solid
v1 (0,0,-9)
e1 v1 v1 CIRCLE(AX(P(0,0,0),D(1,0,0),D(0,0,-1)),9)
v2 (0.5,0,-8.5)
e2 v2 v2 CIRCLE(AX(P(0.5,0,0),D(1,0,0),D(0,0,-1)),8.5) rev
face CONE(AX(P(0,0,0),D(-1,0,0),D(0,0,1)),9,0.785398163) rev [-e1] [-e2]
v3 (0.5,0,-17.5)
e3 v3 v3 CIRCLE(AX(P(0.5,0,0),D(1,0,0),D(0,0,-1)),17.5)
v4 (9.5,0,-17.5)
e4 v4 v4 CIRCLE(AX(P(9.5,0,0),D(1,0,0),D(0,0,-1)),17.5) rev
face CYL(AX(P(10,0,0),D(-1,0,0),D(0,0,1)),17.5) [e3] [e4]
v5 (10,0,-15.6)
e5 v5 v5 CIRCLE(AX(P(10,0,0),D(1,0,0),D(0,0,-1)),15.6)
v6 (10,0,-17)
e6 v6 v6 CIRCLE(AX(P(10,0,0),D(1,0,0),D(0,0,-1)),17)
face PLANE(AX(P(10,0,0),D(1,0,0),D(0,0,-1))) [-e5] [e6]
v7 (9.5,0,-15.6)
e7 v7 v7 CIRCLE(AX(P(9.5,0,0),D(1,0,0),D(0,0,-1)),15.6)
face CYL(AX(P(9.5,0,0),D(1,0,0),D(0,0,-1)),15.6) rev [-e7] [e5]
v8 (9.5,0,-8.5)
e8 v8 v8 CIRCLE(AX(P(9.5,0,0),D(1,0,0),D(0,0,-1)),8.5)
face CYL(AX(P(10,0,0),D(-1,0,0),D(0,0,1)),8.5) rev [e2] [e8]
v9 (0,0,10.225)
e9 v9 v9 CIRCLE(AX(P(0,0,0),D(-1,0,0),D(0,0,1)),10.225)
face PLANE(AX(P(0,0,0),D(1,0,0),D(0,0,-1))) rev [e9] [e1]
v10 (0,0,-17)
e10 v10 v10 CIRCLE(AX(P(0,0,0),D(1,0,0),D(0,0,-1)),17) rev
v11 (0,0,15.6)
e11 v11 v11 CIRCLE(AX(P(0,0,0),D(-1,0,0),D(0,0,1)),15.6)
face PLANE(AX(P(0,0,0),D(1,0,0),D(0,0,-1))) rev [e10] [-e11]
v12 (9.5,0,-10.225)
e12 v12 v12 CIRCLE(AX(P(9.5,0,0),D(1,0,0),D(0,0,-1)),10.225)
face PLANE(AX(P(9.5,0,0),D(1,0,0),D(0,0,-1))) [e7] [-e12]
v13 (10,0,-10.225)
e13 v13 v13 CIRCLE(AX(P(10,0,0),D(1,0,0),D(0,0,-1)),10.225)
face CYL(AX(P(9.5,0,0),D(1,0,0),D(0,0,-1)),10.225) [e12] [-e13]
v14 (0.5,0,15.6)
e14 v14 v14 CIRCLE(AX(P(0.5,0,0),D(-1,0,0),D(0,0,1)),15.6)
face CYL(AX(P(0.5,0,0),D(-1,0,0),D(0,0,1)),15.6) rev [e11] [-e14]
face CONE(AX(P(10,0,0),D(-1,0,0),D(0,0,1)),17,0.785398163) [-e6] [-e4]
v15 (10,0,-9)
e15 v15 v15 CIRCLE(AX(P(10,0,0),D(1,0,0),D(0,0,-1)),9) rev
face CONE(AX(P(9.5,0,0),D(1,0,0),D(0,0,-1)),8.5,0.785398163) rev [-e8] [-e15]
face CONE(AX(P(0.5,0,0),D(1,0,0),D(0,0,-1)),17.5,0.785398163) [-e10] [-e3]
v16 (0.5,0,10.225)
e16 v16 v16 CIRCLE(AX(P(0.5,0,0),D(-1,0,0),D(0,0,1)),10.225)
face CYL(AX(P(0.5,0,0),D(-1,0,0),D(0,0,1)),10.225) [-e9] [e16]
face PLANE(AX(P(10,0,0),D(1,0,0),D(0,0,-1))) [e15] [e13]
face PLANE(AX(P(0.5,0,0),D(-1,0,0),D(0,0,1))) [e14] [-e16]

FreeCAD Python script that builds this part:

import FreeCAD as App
import Part
import Sketcher
from FreeCAD import Vector
Q = App.Units.Quantity


def edges_at(feature, points):
    """Names of the edges that pass closest to the given points."""
    edges = feature.Shape.Edges
    near = lambda p: min(range(len(edges)), key=lambda i: edges[i].distToShape(Part.Vertex(*p))[0])
    return sorted({f"Edge{near(p) + 1}" for p in points})

doc = App.newDocument("Part")
body = doc.addObject("PartDesign::Body", "Body")

# Sketch on YZ plane
sketch1 = body.newObject("Sketcher::SketchObject", "Sketch")
sketch1.AttachmentSupport = (doc.getObject("YZ_Plane"), [""])
sketch1.MapMode = "FlatFace"
sketch1.addGeometry([
    Part.Circle(Vector(0, 0, 0), Vector(0, 0, 1), 17.5),
    Part.Circle(Vector(0, 0, 0), Vector(0, 0, 1), 8.5),
], False)
sketch1.addConstraint([
    Sketcher.Constraint("Coincident", 0, 3, -1, 1),
    Sketcher.Constraint("Coincident", 1, 3, -1, 1),
    Sketcher.Constraint("Diameter", 0, Q("35 mm")),
    Sketcher.Constraint("Diameter", 1, Q("17 mm")),
])
pad1 = body.newObject("PartDesign::Pad", "Pad")
pad1.Profile = sketch1
pad1.Length = 10
doc.recompute()

chamfer = body.newObject("PartDesign::Chamfer", "Chamfer")
chamfer.Base = (pad1, edges_at(pad1, [
    (0, 0, 17.5),
    (10, 0, 17.5),
    (0, 0, 8.5),
    (10, 0, 8.5),
]))
chamfer.Size = 0.5

# Sketch on YZ plane
sketch2 = body.newObject("Sketcher::SketchObject", "Sketch001")
sketch2.AttachmentSupport = (doc.getObject("YZ_Plane"), [""])
sketch2.MapMode = "FlatFace"
sketch2.AttachmentOffset = App.Placement(Vector(0, 0, 10), App.Rotation())
sketch2.addGeometry([
    Part.Circle(Vector(0, 0, 0), Vector(0, 0, 1), 15.6),
    Part.Circle(Vector(0, 0, 0), Vector(0, 0, 1), 10.225),
], False)
sketch2.addConstraint([
    Sketcher.Constraint("Coincident", 0, 3, -1, 1),
    Sketcher.Constraint("Coincident", 1, 3, -1, 1),
    Sketcher.Constraint("Diameter", 0, Q("31.2 mm")),
    Sketcher.Constraint("Diameter", 1, Q("20.45 mm")),
])
pocket1 = body.newObject("PartDesign::Pocket", "Pocket")
pocket1.Profile = sketch2
pocket1.Length = 0.5

# Sketch on YZ plane
sketch3 = body.newObject("Sketcher::SketchObject", "Sketch002")
sketch3.AttachmentSupport = (doc.getObject("YZ_Plane"), [""])
sketch3.MapMode = "FlatFace"
sketch3.addGeometry([
    Part.Circle(Vector(0, 0, 0), Vector(0, 0, 1), 15.6),
    Part.Circle(Vector(0, 0, 0), Vector(0, 0, 1), 10.225),
], False)
sketch3.addConstraint([
    Sketcher.Constraint("Coincident", 0, 3, -1, 1),
    Sketcher.Constraint("Coincident", 1, 3, -1, 1),
    Sketcher.Constraint("Diameter", 0, Q("31.2 mm")),
    Sketcher.Constraint("Diameter", 1, Q("20.45 mm")),
])
pocket2 = body.newObject("PartDesign::Pocket", "Pocket001")
pocket2.Profile = sketch3
pocket2.Length = 0.5
pocket2.Reversed = True

doc.recompute()
